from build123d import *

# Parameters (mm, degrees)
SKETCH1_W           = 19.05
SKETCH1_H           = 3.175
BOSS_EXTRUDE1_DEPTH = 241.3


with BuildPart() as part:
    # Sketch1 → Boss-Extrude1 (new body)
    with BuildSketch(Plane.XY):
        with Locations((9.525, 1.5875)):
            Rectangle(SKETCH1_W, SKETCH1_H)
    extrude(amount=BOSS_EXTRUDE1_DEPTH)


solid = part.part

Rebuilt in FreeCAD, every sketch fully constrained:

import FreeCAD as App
import Part
import Sketcher
Q = App.Units.Quantity


def add_polygon(sketch, points):
    """Adds a closed chain of lines whose ends are joined by coincident constraints."""
    first, n = sketch.GeometryCount, len(points)
    for a, b in zip(points, points[1:] + points[:1]):
        sketch.addGeometry(Part.LineSegment(App.Vector(*a, 0), App.Vector(*b, 0)), False)
    for i in range(n):
        sketch.addConstraint(Sketcher.Constraint("Coincident", first + i, 2, first + (i + 1) % n, 1))

doc = App.newDocument("Part")
params = doc.addObject("Spreadsheet::Sheet", "Params")
for row, (alias, value) in enumerate([
    ("sketch1_width", "0.75 in"),
    ("sketch1_height", "0.125 in"),
    ("pad1_length", "9.5 in"),
], start=1):
    params.set(f"A{row}", alias)
    params.set(f"B{row}", "=" + value)
    params.setAlias(f"B{row}", alias)

body = doc.addObject("PartDesign::Body", "Body")

# Sketch on XY plane
sketch1 = body.newObject("Sketcher::SketchObject", "Sketch")
sketch1.AttachmentSupport = (doc.getObject("XY_Plane"), [""])
sketch1.MapMode = "FlatFace"
add_polygon(sketch1, [(0, 3.2), (0, 0), (19.1, 0), (19.1, 3.2)])  # lines 0-3
sketch1.addConstraint([
    Sketcher.Constraint("Vertical", 0),
    Sketcher.Constraint("Horizontal", 1),
    Sketcher.Constraint("Vertical", 2),
    Sketcher.Constraint("Horizontal", 3),
    Sketcher.Constraint("Coincident", 0, 2, -1, 1),
    Sketcher.Constraint("DistanceX", 1, 1, 1, 2, Q("0.75 in")),
    Sketcher.Constraint("DistanceY", 0, 2, 0, 1, Q("0.125 in")),
])
sketch1.setExpression("Constraints[9]", "Params.sketch1_width")
sketch1.setExpression("Constraints[10]", "Params.sketch1_height")
pad1 = body.newObject("PartDesign::Pad", "Pad")
pad1.Profile = sketch1
pad1.setExpression("Length", "Params.pad1_length")

doc.recompute()
